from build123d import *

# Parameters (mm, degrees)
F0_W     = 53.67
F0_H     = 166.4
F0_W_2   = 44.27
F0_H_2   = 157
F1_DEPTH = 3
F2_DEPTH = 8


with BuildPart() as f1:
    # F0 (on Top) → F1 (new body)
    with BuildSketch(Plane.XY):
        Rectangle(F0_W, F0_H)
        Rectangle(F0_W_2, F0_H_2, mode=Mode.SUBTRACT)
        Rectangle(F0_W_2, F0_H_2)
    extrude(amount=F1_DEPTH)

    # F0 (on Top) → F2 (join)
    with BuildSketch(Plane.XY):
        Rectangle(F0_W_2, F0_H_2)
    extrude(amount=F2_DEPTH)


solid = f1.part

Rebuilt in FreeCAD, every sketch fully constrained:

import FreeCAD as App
import Part
import Sketcher
Q = App.Units.Quantity


def add_polygon(sketch, points):
    """Adds a closed chain of lines whose ends are joined by coincident constraints."""
    first, n = sketch.GeometryCount, len(points)
    for a, b in zip(points, points[1:] + points[:1]):
        sketch.addGeometry(Part.LineSegment(App.Vector(*a, 0), App.Vector(*b, 0)), False)
    for i in range(n):
        sketch.addConstraint(Sketcher.Constraint("Coincident", first + i, 2, first + (i + 1) % n, 1))

doc = App.newDocument("Part")
params = doc.addObject("Spreadsheet::Sheet", "Params")
for row, (alias, value) in enumerate([
    ("sketch1_height", "166.4 mm"),
    ("sketch1_width", "53.67 mm"),
    ("pad1_length", "3 mm"),
    ("sketch2_height", "157 mm"),
    ("sketch2_width", "44.27 mm"),
    ("pad2_length", "8 mm"),
], start=1):
    params.set(f"A{row}", alias)
    params.set(f"B{row}", "=" + value)
    params.setAlias(f"B{row}", alias)

body = doc.addObject("PartDesign::Body", "Body")

# Sketch on XY plane
sketch1 = doc.addObject("Sketcher::SketchObject", "Sketch")
body.addObject(sketch1)
sketch1.AttachmentSupport = (doc.XY_Plane, [""])
sketch1.MapMode = "FlatFace"
add_polygon(sketch1, [(-26.835, 83.2), (-26.835, -83.2), (26.835, -83.2), (26.835, 83.2)])  # lines 0-3
sketch1.addConstraint(Sketcher.Constraint("Vertical", 0))
sketch1.addConstraint(Sketcher.Constraint("Horizontal", 1))
sketch1.addConstraint(Sketcher.Constraint("Vertical", 2))
sketch1.addConstraint(Sketcher.Constraint("Horizontal", 3))
sketch1.addConstraint(Sketcher.Constraint("Symmetric", 0, 2, 2, 2, -1, 1))
sketch1.addConstraint(Sketcher.Constraint("DistanceY", 0, 2, 0, 1, Q("166.4 mm")))
sketch1.addConstraint(Sketcher.Constraint("DistanceX", 1, 1, 1, 2, Q("53.67 mm")))
sketch1.setExpression("Constraints[9]", "Params.sketch1_height")
sketch1.setExpression("Constraints[10]", "Params.sketch1_width")
pad1 = doc.addObject("PartDesign::Pad", "Pad")
body.addObject(pad1)
pad1.Profile = sketch1
pad1.setExpression("Length", "Params.pad1_length")

# Sketch on XY plane
sketch2 = doc.addObject("Sketcher::SketchObject", "Sketch001")
body.addObject(sketch2)
sketch2.AttachmentSupport = (doc.XY_Plane, [""])
sketch2.MapMode = "FlatFace"
add_polygon(sketch2, [(-22.135, 78.5), (-22.135, -78.5), (22.135, -78.5), (22.135, 78.5)])  # lines 0-3
sketch2.addConstraint(Sketcher.Constraint("Vertical", 0))
sketch2.addConstraint(Sketcher.Constraint("Horizontal", 1))
sketch2.addConstraint(Sketcher.Constraint("Vertical", 2))
sketch2.addConstraint(Sketcher.Constraint("Horizontal", 3))
sketch2.addConstraint(Sketcher.Constraint("Symmetric", 0, 2, 2, 2, -1, 1))
sketch2.addConstraint(Sketcher.Constraint("DistanceY", 0, 2, 0, 1, Q("157 mm")))
sketch2.addConstraint(Sketcher.Constraint("DistanceX", 1, 1, 1, 2, Q("44.27 mm")))
sketch2.setExpression("Constraints[9]", "Params.sketch2_height")
sketch2.setExpression("Constraints[10]", "Params.sketch2_width")
pad2 = doc.addObject("PartDesign::Pad", "Pad001")
body.addObject(pad2)
pad2.Profile = sketch2
pad2.setExpression("Length", "Params.pad2_length")

doc.recompute()
